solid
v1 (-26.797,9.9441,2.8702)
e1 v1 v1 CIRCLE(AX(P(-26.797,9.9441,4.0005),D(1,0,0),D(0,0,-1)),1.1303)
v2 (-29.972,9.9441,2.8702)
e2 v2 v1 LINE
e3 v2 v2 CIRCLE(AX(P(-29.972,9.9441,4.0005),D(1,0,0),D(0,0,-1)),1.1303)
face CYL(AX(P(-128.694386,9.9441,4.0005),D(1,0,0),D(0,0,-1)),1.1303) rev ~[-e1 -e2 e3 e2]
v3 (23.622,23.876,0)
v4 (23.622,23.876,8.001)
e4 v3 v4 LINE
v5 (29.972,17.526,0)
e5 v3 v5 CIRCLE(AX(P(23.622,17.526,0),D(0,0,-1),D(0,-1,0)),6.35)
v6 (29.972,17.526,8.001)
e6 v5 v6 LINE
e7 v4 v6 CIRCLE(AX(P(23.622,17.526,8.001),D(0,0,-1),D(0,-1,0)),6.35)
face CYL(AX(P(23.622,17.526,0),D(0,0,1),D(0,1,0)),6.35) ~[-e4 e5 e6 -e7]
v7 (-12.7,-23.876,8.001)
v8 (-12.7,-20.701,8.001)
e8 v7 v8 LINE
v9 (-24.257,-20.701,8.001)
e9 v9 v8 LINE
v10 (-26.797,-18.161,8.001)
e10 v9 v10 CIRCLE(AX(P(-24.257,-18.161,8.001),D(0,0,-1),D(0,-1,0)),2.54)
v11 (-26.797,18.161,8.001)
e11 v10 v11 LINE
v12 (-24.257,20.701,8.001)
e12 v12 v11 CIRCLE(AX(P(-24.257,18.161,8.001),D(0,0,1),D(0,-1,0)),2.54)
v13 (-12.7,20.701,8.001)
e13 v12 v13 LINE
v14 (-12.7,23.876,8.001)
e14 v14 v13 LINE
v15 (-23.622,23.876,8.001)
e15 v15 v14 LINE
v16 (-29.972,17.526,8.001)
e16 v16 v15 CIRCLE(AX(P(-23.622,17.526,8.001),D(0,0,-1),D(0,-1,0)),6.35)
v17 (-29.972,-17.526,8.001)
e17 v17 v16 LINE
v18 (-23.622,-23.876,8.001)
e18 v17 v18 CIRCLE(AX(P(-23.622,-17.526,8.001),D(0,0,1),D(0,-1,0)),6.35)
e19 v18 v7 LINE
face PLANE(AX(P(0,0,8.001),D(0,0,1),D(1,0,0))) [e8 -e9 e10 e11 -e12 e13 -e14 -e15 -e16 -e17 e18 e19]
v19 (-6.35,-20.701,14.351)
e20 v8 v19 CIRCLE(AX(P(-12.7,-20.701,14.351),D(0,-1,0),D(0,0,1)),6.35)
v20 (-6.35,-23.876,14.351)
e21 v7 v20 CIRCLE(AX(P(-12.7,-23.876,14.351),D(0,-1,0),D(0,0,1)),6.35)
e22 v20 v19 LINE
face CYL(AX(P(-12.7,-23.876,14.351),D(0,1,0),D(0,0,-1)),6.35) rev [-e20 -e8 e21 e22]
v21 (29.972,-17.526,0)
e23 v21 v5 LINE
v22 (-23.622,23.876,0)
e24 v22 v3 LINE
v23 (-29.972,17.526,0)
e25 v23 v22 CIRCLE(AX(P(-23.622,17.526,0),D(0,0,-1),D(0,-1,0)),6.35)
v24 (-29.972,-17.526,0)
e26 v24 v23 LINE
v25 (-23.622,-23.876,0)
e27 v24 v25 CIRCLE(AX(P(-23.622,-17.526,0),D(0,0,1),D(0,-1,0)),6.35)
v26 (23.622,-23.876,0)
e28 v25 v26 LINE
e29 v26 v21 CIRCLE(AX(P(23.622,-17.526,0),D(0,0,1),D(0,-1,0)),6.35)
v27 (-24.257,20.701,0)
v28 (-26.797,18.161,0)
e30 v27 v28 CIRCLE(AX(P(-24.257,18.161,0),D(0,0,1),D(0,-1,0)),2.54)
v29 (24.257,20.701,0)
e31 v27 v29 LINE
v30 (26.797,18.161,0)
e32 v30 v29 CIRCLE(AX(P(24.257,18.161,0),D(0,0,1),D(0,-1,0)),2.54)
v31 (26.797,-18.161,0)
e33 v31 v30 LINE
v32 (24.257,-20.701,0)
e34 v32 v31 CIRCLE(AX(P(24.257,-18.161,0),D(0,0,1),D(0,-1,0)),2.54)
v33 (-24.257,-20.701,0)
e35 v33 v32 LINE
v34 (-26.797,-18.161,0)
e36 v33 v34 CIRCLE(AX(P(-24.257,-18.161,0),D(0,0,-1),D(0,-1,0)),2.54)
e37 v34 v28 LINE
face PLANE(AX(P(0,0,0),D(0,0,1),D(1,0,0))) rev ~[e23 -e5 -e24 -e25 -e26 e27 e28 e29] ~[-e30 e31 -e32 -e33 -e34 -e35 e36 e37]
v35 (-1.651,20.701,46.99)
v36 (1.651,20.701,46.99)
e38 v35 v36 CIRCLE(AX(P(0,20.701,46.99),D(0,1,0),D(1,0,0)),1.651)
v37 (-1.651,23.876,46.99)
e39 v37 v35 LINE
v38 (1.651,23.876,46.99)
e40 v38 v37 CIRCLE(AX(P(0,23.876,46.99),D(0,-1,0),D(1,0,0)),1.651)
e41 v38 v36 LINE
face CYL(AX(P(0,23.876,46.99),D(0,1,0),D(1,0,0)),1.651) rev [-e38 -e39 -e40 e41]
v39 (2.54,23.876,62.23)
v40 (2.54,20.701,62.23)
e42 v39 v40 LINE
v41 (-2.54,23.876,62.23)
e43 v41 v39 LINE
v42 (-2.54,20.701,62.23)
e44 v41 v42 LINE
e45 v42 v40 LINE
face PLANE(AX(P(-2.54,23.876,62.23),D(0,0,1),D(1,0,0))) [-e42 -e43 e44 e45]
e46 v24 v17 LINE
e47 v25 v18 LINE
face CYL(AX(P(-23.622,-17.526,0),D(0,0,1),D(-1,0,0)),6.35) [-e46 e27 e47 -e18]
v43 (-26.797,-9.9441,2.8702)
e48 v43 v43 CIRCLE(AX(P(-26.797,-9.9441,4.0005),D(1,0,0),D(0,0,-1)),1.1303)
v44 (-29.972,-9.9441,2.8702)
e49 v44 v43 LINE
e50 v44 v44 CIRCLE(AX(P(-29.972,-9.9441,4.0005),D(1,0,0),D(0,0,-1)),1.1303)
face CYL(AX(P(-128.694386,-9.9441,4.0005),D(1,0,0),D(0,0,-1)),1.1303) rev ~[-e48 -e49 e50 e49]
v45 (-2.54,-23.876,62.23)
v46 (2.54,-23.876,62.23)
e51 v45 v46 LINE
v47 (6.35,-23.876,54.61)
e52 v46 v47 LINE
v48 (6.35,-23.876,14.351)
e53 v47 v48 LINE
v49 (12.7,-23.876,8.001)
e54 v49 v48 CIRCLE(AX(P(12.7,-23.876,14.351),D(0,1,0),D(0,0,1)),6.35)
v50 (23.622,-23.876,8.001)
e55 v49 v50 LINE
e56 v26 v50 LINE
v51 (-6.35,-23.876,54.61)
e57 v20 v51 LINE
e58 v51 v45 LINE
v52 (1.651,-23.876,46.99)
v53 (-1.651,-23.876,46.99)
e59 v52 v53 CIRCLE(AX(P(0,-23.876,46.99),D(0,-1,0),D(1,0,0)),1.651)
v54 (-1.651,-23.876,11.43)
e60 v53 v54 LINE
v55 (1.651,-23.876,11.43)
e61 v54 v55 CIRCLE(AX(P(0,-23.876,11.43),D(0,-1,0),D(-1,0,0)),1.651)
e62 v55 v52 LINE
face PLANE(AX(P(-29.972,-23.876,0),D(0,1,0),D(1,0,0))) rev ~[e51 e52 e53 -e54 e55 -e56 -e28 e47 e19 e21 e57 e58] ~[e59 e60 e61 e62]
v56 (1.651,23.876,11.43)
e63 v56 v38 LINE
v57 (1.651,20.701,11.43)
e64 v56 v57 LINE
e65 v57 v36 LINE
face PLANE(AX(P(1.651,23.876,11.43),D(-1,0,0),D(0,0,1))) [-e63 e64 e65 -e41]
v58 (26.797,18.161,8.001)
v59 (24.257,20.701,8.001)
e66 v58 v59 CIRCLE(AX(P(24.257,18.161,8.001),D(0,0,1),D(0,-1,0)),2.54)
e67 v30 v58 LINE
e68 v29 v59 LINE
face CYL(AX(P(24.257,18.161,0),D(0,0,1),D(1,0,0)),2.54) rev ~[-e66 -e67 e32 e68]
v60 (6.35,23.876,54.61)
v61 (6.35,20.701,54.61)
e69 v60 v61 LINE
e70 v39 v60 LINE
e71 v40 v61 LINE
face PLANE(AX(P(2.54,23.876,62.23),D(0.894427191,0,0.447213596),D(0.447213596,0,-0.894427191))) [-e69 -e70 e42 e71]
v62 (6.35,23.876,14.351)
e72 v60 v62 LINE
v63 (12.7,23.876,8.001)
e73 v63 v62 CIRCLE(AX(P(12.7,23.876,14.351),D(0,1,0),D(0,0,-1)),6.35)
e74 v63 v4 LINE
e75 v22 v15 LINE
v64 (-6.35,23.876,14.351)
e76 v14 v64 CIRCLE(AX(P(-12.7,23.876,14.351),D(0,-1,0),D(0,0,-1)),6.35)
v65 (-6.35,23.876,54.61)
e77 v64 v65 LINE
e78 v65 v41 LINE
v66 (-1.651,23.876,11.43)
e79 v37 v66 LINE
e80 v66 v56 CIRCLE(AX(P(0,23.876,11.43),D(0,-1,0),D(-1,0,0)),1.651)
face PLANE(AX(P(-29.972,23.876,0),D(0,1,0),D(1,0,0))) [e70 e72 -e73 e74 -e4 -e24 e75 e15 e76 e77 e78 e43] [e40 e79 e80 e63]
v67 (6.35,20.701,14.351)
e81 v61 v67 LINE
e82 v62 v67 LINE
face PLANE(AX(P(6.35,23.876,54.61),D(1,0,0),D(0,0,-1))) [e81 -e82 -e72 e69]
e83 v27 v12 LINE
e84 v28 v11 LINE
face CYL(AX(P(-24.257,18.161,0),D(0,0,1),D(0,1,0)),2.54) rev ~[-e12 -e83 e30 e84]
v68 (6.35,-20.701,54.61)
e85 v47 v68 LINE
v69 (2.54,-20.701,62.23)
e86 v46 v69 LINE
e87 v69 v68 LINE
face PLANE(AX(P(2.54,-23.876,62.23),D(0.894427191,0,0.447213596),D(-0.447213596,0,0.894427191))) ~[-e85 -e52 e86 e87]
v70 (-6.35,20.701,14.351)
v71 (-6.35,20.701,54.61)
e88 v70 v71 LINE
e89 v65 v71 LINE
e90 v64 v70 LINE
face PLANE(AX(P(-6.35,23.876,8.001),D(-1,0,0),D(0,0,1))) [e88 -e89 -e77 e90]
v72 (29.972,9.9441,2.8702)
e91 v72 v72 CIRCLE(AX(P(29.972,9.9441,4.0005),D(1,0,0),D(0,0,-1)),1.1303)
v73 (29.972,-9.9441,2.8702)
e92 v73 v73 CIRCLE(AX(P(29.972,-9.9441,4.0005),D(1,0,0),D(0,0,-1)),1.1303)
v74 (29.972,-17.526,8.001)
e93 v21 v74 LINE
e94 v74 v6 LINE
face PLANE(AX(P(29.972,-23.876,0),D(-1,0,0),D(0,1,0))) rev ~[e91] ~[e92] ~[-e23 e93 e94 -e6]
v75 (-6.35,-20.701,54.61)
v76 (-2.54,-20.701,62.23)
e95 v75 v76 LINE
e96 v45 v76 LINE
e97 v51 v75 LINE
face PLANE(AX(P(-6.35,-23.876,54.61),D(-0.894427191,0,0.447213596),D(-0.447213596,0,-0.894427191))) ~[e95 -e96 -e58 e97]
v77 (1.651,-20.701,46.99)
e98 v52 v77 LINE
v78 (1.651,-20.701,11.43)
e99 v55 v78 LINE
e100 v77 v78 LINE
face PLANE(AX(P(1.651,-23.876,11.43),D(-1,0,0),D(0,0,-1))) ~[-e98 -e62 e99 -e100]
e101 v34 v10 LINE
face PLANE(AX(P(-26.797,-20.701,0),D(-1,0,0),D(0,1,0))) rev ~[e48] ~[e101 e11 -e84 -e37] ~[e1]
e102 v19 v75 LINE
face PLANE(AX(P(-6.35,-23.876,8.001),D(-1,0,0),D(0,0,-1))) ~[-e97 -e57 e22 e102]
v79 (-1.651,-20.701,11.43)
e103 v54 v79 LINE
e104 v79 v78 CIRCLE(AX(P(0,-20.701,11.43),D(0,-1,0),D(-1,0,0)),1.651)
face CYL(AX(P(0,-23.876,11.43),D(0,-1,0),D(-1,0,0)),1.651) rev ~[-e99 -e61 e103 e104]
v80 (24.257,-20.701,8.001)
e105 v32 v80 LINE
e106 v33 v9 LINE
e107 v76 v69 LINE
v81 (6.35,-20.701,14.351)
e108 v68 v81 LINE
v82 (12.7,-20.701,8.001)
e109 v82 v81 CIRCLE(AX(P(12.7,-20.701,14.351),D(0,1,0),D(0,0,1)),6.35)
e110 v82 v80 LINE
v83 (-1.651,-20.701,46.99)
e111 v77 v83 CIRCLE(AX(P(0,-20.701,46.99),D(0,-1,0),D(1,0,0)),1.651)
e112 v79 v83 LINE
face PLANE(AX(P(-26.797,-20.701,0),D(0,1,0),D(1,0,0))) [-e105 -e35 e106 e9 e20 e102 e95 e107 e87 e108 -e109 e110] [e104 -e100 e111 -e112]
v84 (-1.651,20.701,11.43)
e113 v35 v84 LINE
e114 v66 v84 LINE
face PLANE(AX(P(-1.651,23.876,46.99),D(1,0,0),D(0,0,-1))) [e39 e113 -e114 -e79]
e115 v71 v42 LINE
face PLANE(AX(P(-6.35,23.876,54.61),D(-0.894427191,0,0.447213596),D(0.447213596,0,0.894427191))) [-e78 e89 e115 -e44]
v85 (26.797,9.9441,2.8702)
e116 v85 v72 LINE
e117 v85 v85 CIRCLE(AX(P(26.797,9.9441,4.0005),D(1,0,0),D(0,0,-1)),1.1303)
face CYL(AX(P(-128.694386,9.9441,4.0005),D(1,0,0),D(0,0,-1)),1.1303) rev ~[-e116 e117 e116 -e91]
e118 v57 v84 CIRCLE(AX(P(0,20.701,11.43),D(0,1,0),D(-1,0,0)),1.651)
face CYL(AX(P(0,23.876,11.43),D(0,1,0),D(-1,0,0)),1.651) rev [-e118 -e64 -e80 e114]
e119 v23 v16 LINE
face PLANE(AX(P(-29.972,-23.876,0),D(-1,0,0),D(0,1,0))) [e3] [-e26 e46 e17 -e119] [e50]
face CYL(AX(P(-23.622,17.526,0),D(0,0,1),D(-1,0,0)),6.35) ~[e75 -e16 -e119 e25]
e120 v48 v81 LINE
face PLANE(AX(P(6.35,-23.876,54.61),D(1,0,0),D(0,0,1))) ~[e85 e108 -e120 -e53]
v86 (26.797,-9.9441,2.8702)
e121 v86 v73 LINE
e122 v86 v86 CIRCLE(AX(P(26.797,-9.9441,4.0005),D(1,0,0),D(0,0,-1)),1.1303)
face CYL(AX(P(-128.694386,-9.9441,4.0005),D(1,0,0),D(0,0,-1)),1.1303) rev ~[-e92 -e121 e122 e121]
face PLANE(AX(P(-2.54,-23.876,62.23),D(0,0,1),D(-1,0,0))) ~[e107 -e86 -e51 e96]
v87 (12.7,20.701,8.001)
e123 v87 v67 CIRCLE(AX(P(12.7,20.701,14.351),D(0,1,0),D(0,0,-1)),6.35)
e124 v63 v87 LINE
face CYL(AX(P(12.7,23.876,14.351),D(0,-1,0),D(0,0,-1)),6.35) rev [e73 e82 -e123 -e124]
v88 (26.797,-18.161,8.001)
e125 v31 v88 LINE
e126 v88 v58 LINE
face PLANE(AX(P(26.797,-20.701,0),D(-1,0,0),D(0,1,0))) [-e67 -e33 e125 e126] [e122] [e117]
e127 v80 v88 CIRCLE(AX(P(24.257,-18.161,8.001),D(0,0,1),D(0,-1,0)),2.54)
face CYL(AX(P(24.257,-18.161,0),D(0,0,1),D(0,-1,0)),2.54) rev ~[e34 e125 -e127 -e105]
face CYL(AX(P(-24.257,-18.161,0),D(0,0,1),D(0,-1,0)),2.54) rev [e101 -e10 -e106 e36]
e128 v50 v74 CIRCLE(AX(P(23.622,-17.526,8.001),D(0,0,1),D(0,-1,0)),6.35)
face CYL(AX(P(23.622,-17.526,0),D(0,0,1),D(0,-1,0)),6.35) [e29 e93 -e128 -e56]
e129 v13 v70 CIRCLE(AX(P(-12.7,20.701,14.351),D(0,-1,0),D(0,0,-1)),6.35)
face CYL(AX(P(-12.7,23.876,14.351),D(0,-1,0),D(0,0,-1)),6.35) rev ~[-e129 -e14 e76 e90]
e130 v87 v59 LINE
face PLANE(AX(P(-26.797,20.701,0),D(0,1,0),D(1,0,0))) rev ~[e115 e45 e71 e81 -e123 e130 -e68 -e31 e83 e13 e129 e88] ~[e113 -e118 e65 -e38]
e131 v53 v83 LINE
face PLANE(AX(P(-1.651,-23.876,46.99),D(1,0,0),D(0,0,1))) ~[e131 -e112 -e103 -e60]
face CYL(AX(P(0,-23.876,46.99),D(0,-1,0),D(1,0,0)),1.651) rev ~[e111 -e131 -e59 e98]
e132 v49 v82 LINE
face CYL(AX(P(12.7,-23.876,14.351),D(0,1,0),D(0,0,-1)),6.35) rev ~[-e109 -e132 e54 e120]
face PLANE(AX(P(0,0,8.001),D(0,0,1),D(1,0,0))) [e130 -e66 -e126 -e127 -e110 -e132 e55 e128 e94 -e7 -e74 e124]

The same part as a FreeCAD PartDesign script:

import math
import FreeCAD as App
import Part
import Sketcher
from FreeCAD import Vector
Q = App.Units.Quantity


def edges_at(feature, points):
    """Names of the edges that pass closest to the given points."""
    edges = feature.Shape.Edges
    near = lambda p: min(range(len(edges)), key=lambda i: edges[i].distToShape(Part.Vertex(*p))[0])
    return sorted({f"Edge{near(p) + 1}" for p in points})

doc = App.newDocument("Part")
body = doc.addObject("PartDesign::Body", "Body")

# Sketch on XY plane
sketch1 = body.newObject("Sketcher::SketchObject", "Sketch")
sketch1.AttachmentSupport = (doc.getObject("XY_Plane"), [""])
sketch1.MapMode = "FlatFace"
sketch1.addGeometry([
    Part.LineSegment(Vector(-29.972, 23.876, 0), Vector(-29.972, -23.876, 0)),  # 0
    Part.LineSegment(Vector(-29.972, -23.876, 0), Vector(29.972, -23.876, 0)),  # 1
    Part.LineSegment(Vector(29.972, -23.876, 0), Vector(29.972, 23.876, 0)),  # 2
    Part.LineSegment(Vector(29.972, 23.876, 0), Vector(-29.972, 23.876, 0)),  # 3
    Part.LineSegment(Vector(26.797, -20.701, 0), Vector(-26.797, -20.701, 0)),  # 4
    Part.LineSegment(Vector(-26.797, -20.701, 0), Vector(-26.797, 20.701, 0)),  # 5
    Part.LineSegment(Vector(-26.797, 20.701, 0), Vector(26.797, 20.701, 0)),  # 6
    Part.LineSegment(Vector(26.797, 20.701, 0), Vector(26.797, -20.701, 0)),  # 7
], False)
sketch1.addConstraint([
    Sketcher.Constraint("Coincident", 0, 2, 1, 1),
    Sketcher.Constraint("Coincident", 1, 2, 2, 1),
    Sketcher.Constraint("Coincident", 2, 2, 3, 1),
    Sketcher.Constraint("Coincident", 3, 2, 0, 1),
    Sketcher.Constraint("Coincident", 4, 2, 5, 1),
    Sketcher.Constraint("Coincident", 5, 2, 6, 1),
    Sketcher.Constraint("Coincident", 6, 2, 7, 1),
    Sketcher.Constraint("Coincident", 7, 2, 4, 1),
    Sketcher.Constraint("Vertical", 0),
    Sketcher.Constraint("Horizontal", 1),
    Sketcher.Constraint("Vertical", 2),
    Sketcher.Constraint("Horizontal", 3),
    Sketcher.Constraint("Horizontal", 4),
    Sketcher.Constraint("Vertical", 5),
    Sketcher.Constraint("Horizontal", 6),
    Sketcher.Constraint("Vertical", 7),
    Sketcher.Constraint("Symmetric", 0, 2, 2, 2, -1, 1),
    Sketcher.Constraint("Symmetric", 4, 2, 6, 2, -1, 1),
    Sketcher.Constraint("DistanceX", 1, 1, 1, 2, Q("2.36 in")),
    Sketcher.Constraint("DistanceX", 4, 2, 4, 1, Q("2.11 in")),
    Sketcher.Constraint("DistanceY", 0, 2, 0, 1, Q("1.88 in")),
    Sketcher.Constraint("DistanceY", 5, 1, 5, 2, Q("1.63 in")),
])
pad1 = body.newObject("PartDesign::Pad", "Pad")
pad1.Profile = sketch1
pad1.Length = Q("0.315 in")

# Sketch on XZ plane
sketch2 = body.newObject("Sketcher::SketchObject", "Sketch001")
sketch2.AttachmentSupport = (doc.getObject("XZ_Plane"), [""])
sketch2.MapMode = "FlatFace"
sketch2.AttachmentOffset = App.Placement(Vector(0, 0, -0.94 * 25.4), App.Rotation())
sketch2.addGeometry([
    Part.LineSegment(Vector(-6.35, 8.001, 0), Vector(-6.35, 54.61, 0)),  # 0
    Part.LineSegment(Vector(-6.35, 54.61, 0), Vector(-2.54, 62.23, 0)),  # 1
    Part.LineSegment(Vector(-2.54, 62.23, 0), Vector(2.54, 62.23, 0)),  # 2
    Part.LineSegment(Vector(2.54, 62.23, 0), Vector(6.35, 54.61, 0)),  # 3
    Part.LineSegment(Vector(6.35, 54.61, 0), Vector(6.35, 8.001, 0)),  # 4
    Part.LineSegment(Vector(6.35, 8.001, 0), Vector(-6.35, 8.001, 0)),  # 5
], False)
sketch2.addConstraint([
    Sketcher.Constraint("Coincident", 0, 2, 1, 1),
    Sketcher.Constraint("Coincident", 1, 2, 2, 1),
    Sketcher.Constraint("Coincident", 2, 2, 3, 1),
    Sketcher.Constraint("Coincident", 3, 2, 4, 1),
    Sketcher.Constraint("Coincident", 4, 2, 5, 1),
    Sketcher.Constraint("Coincident", 5, 2, 0, 1),
    Sketcher.Constraint("Vertical", 0),
    Sketcher.Constraint("Horizontal", 2),
    Sketcher.Constraint("Vertical", 4),
    Sketcher.Constraint("Horizontal", 5),
    Sketcher.Constraint("Symmetric", 0, 2, 3, 2, -2),
    Sketcher.Constraint("Equal", 1, 3),
    Sketcher.Constraint("DistanceX", 2, 1, 2, 2, Q("0.2 in")),
    Sketcher.Constraint("DistanceX", 5, 2, 5, 1, Q("0.5 in")),
    Sketcher.Constraint("DistanceY", 0, 2, 1, 2, Q("0.3 in")),
    Sketcher.Constraint("DistanceY", 0, 1, 0, 2, Q("1.835 in")),
    Sketcher.Constraint("DistanceY", -1, 1, 0, 2, Q("2.15 in")),
])
pad2 = body.newObject("PartDesign::Pad", "Pad001")
pad2.Profile = sketch2
pad2.Length = Q("0.125 in")

# Sketch on XZ plane
sketch3 = body.newObject("Sketcher::SketchObject", "Sketch002")
sketch3.AttachmentSupport = (doc.getObject("XZ_Plane"), [""])
sketch3.MapMode = "FlatFace"
sketch3.AttachmentOffset = App.Placement(Vector(0, 0, -0.94 * 25.4), App.Rotation())
sketch3.addGeometry([
    Part.LineSegment(Vector(-1.651, 11.43, 0), Vector(-1.651, 46.99, 0)),
    Part.ArcOfCircle(Part.Circle(Vector(0, 46.99, 0), Vector(0, 0, 1), 1.651), math.radians(0), math.radians(180)),
    Part.LineSegment(Vector(1.651, 46.99, 0), Vector(1.651, 11.43, 0)),
    Part.ArcOfCircle(Part.Circle(Vector(0, 11.43, 0), Vector(0, 0, 1), 1.651), math.radians(180), math.radians(360)),
], False)
sketch3.addConstraint([
    Sketcher.Constraint("Tangent", 0, 2, 1, 2),
    Sketcher.Constraint("Tangent", 1, 1, 2, 1),
    Sketcher.Constraint("Tangent", 2, 2, 3, 2),
    Sketcher.Constraint("Tangent", 3, 1, 0, 1),
    Sketcher.Constraint("Vertical", 0),
    Sketcher.Constraint("Vertical", 2),
    Sketcher.Constraint("PointOnObject", 1, 3, -2),
    Sketcher.Constraint("DistanceY", 0, 1, 0, 2, Q("1.4 in")),
    Sketcher.Constraint("Radius", 1, Q("0.065 in")),
    Sketcher.Constraint("DistanceY", -1, 1, 1, 3, Q("1.85 in")),
])
pocket1 = body.newObject("PartDesign::Pocket", "Pocket")
pocket1.Profile = sketch3
pocket1.Length = Q("0.13 in")
pocket1.Reversed = True
doc.recompute()

mirrored = body.newObject("PartDesign::Mirrored", "Mirrored")
mirrored.Originals = [pad2, pocket1]
mirrored.MirrorPlane = (doc.getObject("XZ_Plane"), [""])
body.Tip = mirrored

# Sketch on YZ plane
sketch4 = body.newObject("Sketcher::SketchObject", "Sketch003")
sketch4.AttachmentSupport = (doc.getObject("YZ_Plane"), [""])
sketch4.MapMode = "FlatFace"
sketch4.AttachmentOffset = App.Placement(Vector(0, 0, -1.18 * 25.4), App.Rotation())
sketch4.addGeometry([
    Part.Circle(Vector(9.9441, 4.0005, 0), Vector(0, 0, 1), 1.1303),
    Part.Circle(Vector(-9.9441, 4.0005, 0), Vector(0, 0, 1), 1.1303),
], False)
sketch4.addConstraint([
    Sketcher.Constraint("Equal", 0, 1),
    Sketcher.Constraint("Symmetric", 0, 3, 1, 3, -2),
    Sketcher.Constraint("Diameter", 0, Q("0.089 in")),
    Sketcher.Constraint("DistanceX", 1, 3, 0, 3, Q("0.783 in")),
    Sketcher.Constraint("DistanceY", -1, 1, 0, 3, Q("0.1575 in")),
])
doc.recompute()
hole = body.newObject("PartDesign::Hole", "Hole")
hole.Profile = sketch4
hole.ThreadType = "None"
hole.Diameter = Q("0.089 in")
hole.DepthType = "ThroughAll"
hole.Reversed = True
doc.recompute()

fillet = body.newObject("PartDesign::Fillet", "Fillet")
fillet.Base = (hole, edges_at(hole, [
    (29.972, -23.876, 4),
    (-29.972, -23.876, 4),
    (-29.972, 23.876, 4),
    (29.972, 23.876, 4),
]))
fillet.Radius = Q("0.25 in")
doc.recompute()

fillet2 = body.newObject("PartDesign::Fillet", "Fillet001")
fillet2.Base = (fillet, edges_at(fillet, [
    (26.797, -20.701, 4),
    (26.797, 20.701, 4),
    (-26.797, 20.701, 4),
    (-26.797, -20.701, 4),
]))
fillet2.Radius = Q("0.1 in")
doc.recompute()

fillet3 = body.newObject("PartDesign::Fillet", "Fillet002")
fillet3.Base = (fillet2, edges_at(fillet2, [
    (-6.35, 22.288, 8.001),
    (6.35, 22.288, 8.001),
    (-6.35, -22.288, 8.001),
    (6.35, -22.288, 8.001),
]))
fillet3.Radius = Q("0.25 in")

doc.recompute()
